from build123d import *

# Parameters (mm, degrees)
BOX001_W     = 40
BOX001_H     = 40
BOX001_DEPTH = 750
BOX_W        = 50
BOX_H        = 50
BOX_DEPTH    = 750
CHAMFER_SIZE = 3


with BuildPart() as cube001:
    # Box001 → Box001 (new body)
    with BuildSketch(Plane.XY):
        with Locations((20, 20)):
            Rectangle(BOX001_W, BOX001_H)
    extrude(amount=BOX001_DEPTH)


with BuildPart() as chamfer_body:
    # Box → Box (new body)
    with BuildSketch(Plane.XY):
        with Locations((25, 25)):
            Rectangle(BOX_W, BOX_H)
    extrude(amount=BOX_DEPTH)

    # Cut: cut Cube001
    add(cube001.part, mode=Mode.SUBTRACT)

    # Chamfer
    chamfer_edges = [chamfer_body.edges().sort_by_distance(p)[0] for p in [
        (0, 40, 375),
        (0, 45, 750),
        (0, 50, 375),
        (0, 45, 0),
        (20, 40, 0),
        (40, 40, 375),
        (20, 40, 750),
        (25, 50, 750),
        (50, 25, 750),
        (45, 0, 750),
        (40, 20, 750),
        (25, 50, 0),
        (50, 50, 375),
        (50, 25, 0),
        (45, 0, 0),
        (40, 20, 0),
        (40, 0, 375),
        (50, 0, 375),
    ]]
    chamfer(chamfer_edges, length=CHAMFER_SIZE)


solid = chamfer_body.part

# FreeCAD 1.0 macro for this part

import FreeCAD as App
import Part
import Sketcher
from FreeCAD import Vector


def add_polygon(sketch, points):
    """Adds a closed chain of lines whose ends are joined by coincident constraints."""
    first, n = sketch.GeometryCount, len(points)
    for a, b in zip(points, points[1:] + points[:1]):
        sketch.addGeometry(Part.LineSegment(App.Vector(*a, 0), App.Vector(*b, 0)), False)
    for i in range(n):
        sketch.addConstraint(Sketcher.Constraint("Coincident", first + i, 2, first + (i + 1) % n, 1))

doc = App.newDocument("Part")
body = doc.addObject("PartDesign::Body", "Body")

sketch1 = body.newObject("Sketcher::SketchObject", "Sketch")
sketch1.AttachmentSupport = (doc.getObject("XY_Plane"), [""])
sketch1.MapMode = "FlatFace"
add_polygon(sketch1, [(0, 40), (0, 0), (40, 0), (40, 40)])
sketch1.addConstraint(Sketcher.Constraint("Vertical", 0))
sketch1.addConstraint(Sketcher.Constraint("Horizontal", 1))
sketch1.addConstraint(Sketcher.Constraint("Vertical", 2))
sketch1.addConstraint(Sketcher.Constraint("Horizontal", 3))
sketch1.addConstraint(Sketcher.Constraint("Coincident", 0, 2, -1, 1))
sketch1.addConstraint(Sketcher.Constraint("Equal", 3, 0))
sketch1.addConstraint(Sketcher.Constraint("DistanceX", 1, 1, 1, 2, 40.0))
pad1 = body.newObject("PartDesign::Pad", "Pad")
pad1.Profile = sketch1
pad1.Length = 750
body2 = doc.addObject("PartDesign::Body", "Body001")

sketch2 = body2.newObject("Sketcher::SketchObject", "Sketch001")
sketch2.AttachmentSupport = (doc.getObject("XY_Plane001"), [""])
sketch2.MapMode = "FlatFace"
add_polygon(sketch2, [(0, 50), (0, 0), (50, 0), (50, 50)])
sketch2.addConstraint(Sketcher.Constraint("Vertical", 0))
sketch2.addConstraint(Sketcher.Constraint("Horizontal", 1))
sketch2.addConstraint(Sketcher.Constraint("Vertical", 2))
sketch2.addConstraint(Sketcher.Constraint("Horizontal", 3))
sketch2.addConstraint(Sketcher.Constraint("Coincident", 0, 2, -1, 1))
sketch2.addConstraint(Sketcher.Constraint("Equal", 3, 0))
sketch2.addConstraint(Sketcher.Constraint("DistanceX", 1, 1, 1, 2, 50.0))
pad2 = body2.newObject("PartDesign::Pad", "Pad001")
pad2.Profile = sketch2
pad2.Length = 750
doc.recompute()

boolean = body2.newObject("PartDesign::Boolean", "Boolean")
boolean.Type = "Cut"
boolean.addObjects([body])
doc.recompute()

chamfer = body2.newObject("PartDesign::Chamfer", "Chamfer")
chamfer.Base = (boolean, ["Edge1"])
chamfer.UseAllEdges = True
chamfer.Size = 3

doc.recompute()
